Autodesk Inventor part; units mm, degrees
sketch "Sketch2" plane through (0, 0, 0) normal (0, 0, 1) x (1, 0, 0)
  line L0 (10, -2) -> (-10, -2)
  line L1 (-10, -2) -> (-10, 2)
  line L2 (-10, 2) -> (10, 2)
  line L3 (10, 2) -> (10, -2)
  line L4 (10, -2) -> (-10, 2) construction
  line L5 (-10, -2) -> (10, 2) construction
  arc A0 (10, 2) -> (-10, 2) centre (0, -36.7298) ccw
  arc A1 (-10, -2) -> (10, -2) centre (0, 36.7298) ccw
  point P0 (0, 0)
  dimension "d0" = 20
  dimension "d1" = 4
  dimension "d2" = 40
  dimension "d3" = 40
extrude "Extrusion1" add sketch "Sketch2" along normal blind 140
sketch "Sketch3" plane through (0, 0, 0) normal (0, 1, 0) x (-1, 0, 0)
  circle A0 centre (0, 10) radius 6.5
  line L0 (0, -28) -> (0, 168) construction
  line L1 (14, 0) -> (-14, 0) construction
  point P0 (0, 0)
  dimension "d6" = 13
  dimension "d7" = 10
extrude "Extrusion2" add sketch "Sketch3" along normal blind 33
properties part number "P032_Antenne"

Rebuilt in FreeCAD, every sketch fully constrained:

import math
import FreeCAD as App
import Part
import Sketcher
from FreeCAD import Vector

doc = App.newDocument("Part")
body = doc.addObject("PartDesign::Body", "Body")

# Sketch on XY plane
sketch1 = doc.addObject("Sketcher::SketchObject", "Sketch")
body.addObject(sketch1)
sketch1.AttachmentSupport = (doc.XY_Plane, [""])
sketch1.MapMode = "FlatFace"
sketch1.addGeometry([
    Part.ArcOfCircle(Part.Circle(Vector(0, 36.7, 0), Vector(0, 0, 1), 40), math.radians(-104), math.radians(-76)),
    Part.LineSegment(Vector(10, -2, 0), Vector(10, 2, 0)),
    Part.ArcOfCircle(Part.Circle(Vector(0, -36.7, 0), Vector(0, 0, 1), 40), math.radians(76), math.radians(104)),
    Part.LineSegment(Vector(-10, 2, 0), Vector(-10, -2, 0)),
], False)
sketch1.addConstraint([
    Sketcher.Constraint("Coincident", 0, 2, 1, 1),
    Sketcher.Constraint("Coincident", 1, 2, 2, 1),
    Sketcher.Constraint("Coincident", 2, 2, 3, 1),
    Sketcher.Constraint("Coincident", 3, 2, 0, 1),
    Sketcher.Constraint("Vertical", 1),
    Sketcher.Constraint("Vertical", 3),
    Sketcher.Constraint("Equal", 0, 2),
    Sketcher.Constraint("Symmetric", 0, 3, 2, 3, -1, 1),
    Sketcher.Constraint("Symmetric", 1, 2, 2, 2, -2),
    Sketcher.Constraint("Radius", 0, 40.0),
    Sketcher.Constraint("DistanceY", 1, 1, 1, 2, 4.0),
    Sketcher.Constraint("DistanceX", 2, 2, 1, 2, 20.0),
])
pad1 = doc.addObject("PartDesign::Pad", "Pad")
body.addObject(pad1)
pad1.Profile = sketch1
pad1.Length = 140

# Sketch on XZ plane
sketch2 = doc.addObject("Sketcher::SketchObject", "Sketch001")
body.addObject(sketch2)
sketch2.AttachmentSupport = (doc.XZ_Plane, [""])
sketch2.MapMode = "FlatFace"
sketch2.addGeometry(Part.Circle(Vector(0, 10, 0), Vector(0, 0, 1), 6), False)
sketch2.addConstraint([
    Sketcher.Constraint("PointOnObject", 0, 3, -2),
    Sketcher.Constraint("Diameter", 0, 13.0),
    Sketcher.Constraint("DistanceY", -1, 1, 0, 3, 10.0),
])
pad2 = doc.addObject("PartDesign::Pad", "Pad001")
body.addObject(pad2)
pad2.Profile = sketch2
pad2.Length = 33
pad2.Reversed = True

doc.recompute()
